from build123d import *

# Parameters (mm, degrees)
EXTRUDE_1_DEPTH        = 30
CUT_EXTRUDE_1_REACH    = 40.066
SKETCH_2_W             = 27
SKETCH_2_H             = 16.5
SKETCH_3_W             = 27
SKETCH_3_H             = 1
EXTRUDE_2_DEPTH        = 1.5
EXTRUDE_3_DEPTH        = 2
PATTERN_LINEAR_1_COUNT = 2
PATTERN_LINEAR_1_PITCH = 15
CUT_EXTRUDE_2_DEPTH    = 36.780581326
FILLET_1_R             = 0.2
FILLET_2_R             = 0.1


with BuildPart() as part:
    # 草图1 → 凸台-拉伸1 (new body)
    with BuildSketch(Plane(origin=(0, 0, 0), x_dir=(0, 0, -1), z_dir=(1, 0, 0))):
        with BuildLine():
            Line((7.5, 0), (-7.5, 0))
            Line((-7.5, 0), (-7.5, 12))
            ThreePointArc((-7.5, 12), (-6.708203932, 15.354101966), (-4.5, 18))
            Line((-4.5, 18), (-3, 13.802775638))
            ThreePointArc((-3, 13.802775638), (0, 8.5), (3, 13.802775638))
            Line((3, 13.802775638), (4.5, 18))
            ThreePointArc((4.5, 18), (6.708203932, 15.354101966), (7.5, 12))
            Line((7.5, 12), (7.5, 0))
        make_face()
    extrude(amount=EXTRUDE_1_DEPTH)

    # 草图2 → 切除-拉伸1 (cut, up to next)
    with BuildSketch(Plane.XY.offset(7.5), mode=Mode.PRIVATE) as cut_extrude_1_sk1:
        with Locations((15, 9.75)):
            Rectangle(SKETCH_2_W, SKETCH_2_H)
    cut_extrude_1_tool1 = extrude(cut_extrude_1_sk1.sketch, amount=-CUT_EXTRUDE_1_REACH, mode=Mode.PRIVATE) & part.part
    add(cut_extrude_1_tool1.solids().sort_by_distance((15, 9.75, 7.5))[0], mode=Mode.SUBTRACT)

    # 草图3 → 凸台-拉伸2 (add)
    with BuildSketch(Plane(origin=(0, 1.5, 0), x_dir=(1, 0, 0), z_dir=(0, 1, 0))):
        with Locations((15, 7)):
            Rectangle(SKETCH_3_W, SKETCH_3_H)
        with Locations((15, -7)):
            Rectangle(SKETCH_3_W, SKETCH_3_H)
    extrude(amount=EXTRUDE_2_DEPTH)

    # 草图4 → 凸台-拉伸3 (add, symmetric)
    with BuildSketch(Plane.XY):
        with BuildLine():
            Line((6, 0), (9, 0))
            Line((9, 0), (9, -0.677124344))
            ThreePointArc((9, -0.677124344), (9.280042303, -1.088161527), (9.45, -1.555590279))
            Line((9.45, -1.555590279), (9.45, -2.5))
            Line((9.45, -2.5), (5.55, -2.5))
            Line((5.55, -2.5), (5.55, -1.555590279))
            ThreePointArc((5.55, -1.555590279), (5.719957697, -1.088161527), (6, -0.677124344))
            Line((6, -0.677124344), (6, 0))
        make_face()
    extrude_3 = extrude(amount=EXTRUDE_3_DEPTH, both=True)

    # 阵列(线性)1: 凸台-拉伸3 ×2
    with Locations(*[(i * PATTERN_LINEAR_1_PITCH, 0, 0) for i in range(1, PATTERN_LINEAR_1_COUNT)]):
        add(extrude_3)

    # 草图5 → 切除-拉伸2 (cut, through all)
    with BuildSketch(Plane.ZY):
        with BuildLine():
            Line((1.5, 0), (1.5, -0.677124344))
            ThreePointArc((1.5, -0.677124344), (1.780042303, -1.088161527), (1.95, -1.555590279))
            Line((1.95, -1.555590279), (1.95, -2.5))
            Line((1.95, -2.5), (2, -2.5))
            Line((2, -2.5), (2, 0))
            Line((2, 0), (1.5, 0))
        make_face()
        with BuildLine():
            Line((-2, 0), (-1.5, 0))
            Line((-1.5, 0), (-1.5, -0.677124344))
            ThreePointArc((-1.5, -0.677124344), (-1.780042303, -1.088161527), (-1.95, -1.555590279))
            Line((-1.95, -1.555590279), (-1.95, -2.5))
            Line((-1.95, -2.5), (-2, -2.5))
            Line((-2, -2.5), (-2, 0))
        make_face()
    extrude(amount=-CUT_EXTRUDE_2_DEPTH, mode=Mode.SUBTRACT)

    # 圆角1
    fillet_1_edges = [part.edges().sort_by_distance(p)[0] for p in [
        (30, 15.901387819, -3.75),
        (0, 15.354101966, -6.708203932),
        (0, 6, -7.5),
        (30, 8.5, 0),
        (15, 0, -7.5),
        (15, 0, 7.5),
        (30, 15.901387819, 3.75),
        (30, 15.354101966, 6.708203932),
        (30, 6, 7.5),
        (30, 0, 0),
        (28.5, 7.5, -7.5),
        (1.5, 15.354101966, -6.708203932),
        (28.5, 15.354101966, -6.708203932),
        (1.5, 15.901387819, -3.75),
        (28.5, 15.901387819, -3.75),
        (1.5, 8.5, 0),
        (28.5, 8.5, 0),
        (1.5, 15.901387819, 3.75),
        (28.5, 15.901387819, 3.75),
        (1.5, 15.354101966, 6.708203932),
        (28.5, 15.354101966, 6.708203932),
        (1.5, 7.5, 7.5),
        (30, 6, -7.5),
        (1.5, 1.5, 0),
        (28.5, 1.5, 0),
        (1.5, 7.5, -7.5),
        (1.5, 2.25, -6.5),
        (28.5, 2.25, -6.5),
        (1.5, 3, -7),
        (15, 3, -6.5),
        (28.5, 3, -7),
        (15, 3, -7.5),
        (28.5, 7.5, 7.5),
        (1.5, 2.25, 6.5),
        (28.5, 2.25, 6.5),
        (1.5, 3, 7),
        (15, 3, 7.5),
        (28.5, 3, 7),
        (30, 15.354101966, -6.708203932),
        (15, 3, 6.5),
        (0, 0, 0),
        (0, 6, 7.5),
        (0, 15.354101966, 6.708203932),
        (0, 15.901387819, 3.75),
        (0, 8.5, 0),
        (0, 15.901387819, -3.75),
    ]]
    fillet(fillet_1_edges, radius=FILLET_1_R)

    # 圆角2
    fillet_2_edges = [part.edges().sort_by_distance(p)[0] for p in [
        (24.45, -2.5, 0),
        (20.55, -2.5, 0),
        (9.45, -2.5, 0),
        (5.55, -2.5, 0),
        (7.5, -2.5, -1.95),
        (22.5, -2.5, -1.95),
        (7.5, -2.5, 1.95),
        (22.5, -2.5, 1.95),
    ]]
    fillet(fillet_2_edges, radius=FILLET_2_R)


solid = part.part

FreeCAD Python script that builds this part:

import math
import FreeCAD as App
import Part
import Sketcher

V = App.Vector


def edges_at(feature, points):
    """Names of the edges that pass closest to the given points."""
    edges = feature.Shape.Edges
    near = lambda p: min(range(len(edges)), key=lambda i: edges[i].distToShape(Part.Vertex(*p))[0])
    return sorted({f"Edge{near(p) + 1}" for p in points})

doc = App.newDocument("Part")
body = doc.addObject("PartDesign::Body", "Body")

# Sketch on YZ plane
sketch1 = doc.addObject("Sketcher::SketchObject", "Sketch")
body.addObject(sketch1)
sketch1.AttachmentSupport = (doc.YZ_Plane, [""])
sketch1.MapMode = "FlatFace"
sketch1.addGeometry([
    Part.LineSegment(V(0, 7.5, 0), V(0, -7.5, 0)),  # 0
    Part.LineSegment(V(0, -7.5, 0), V(12, -7.5, 0)),  # 1
    Part.ArcOfCircle(Part.Circle(V(12, 0, 0), V(0, 0, 1), 7.5), math.radians(-90), math.radians(-37)),  # 2
    Part.LineSegment(V(18, -4.5, 0), V(13.8, -3, 0)),  # 3
    Part.ArcOfCircle(Part.Circle(V(12, 0, 0), V(0, 0, 1), 3.5), math.radians(59), math.radians(301)),  # 4
    Part.LineSegment(V(13.8, 3, 0), V(18, 4.5, 0)),  # 5
    Part.ArcOfCircle(Part.Circle(V(12, 0, 0), V(0, 0, 1), 7.5), math.radians(37), math.radians(90)),  # 6
    Part.LineSegment(V(12, 7.5, 0), V(0, 7.5, 0)),  # 7
], False)
sketch1.addConstraint([
    Sketcher.Constraint("Coincident", 0, 2, 1, 1),
    Sketcher.Constraint("Tangent", 1, 2, 2, 1),
    Sketcher.Constraint("Coincident", 2, 2, 3, 1),
    Sketcher.Constraint("Coincident", 3, 2, 4, 2),
    Sketcher.Constraint("Coincident", 4, 1, 5, 1),
    Sketcher.Constraint("Coincident", 5, 2, 6, 1),
    Sketcher.Constraint("Tangent", 6, 2, 7, 1),
    Sketcher.Constraint("Coincident", 7, 2, 0, 1),
    Sketcher.Constraint("Vertical", 0),
    Sketcher.Constraint("Horizontal", 1),
    Sketcher.Constraint("Horizontal", 7),
    Sketcher.Constraint("Coincident", 4, 3, 2, 3),
    Sketcher.Constraint("Coincident", 6, 3, 2, 3),
    Sketcher.Constraint("Equal", 2, 6),
    Sketcher.Constraint("Symmetric", 0, 2, 7, 2, -1, 1),
    Sketcher.Constraint("Vertical", 3, 2, 4, 1),
    Sketcher.Constraint("Vertical", 2, 2, 5, 2),
    Sketcher.Constraint("Radius", 2, 7.5),
    Sketcher.Constraint("Radius", 4, 3.5),
    Sketcher.Constraint("DistanceX", 1, 1, 1, 2, 12.0),
    Sketcher.Constraint("DistanceX", -1, 1, 2, 2, 18.0),
    Sketcher.Constraint("DistanceY", 3, 2, -1, 1, 3.0),
])
pad1 = doc.addObject("PartDesign::Pad", "Pad")
body.addObject(pad1)
pad1.Profile = sketch1
pad1.Length = 30

# Sketch on XY plane
sketch2 = doc.addObject("Sketcher::SketchObject", "Sketch001")
body.addObject(sketch2)
sketch2.AttachmentSupport = (doc.XY_Plane, [""])
sketch2.MapMode = "FlatFace"
sketch2.AttachmentOffset = App.Placement(V(0, 0, 7.5), App.Rotation())
sketch2.addGeometry([
    Part.LineSegment(V(2, 18, 0), V(2, 2, 0)),
    Part.LineSegment(V(2, 2, 0), V(28, 2, 0)),
    Part.LineSegment(V(28, 2, 0), V(28, 18, 0)),
    Part.LineSegment(V(28, 18, 0), V(2, 18, 0)),
], False)
sketch2.addConstraint([
    Sketcher.Constraint("Coincident", 0, 2, 1, 1),
    Sketcher.Constraint("Coincident", 1, 2, 2, 1),
    Sketcher.Constraint("Coincident", 2, 2, 3, 1),
    Sketcher.Constraint("Coincident", 3, 2, 0, 1),
    Sketcher.Constraint("Vertical", 0),
    Sketcher.Constraint("Horizontal", 1),
    Sketcher.Constraint("Vertical", 2),
    Sketcher.Constraint("Horizontal", 3),
    Sketcher.Constraint("DistanceX", 1, 1, 1, 2, 27.0),
    Sketcher.Constraint("DistanceY", 0, 2, 0, 1, 16.5),
    Sketcher.Constraint("DistanceY", -1, 1, 2, 2, 18.0),
    Sketcher.Constraint("DistanceX", -1, 1, 0, 2, 1.5),
])
pocket1 = doc.addObject("PartDesign::Pocket", "Pocket")
body.addObject(pocket1)
pocket1.Profile = sketch2
pocket1.Length = 15

# Sketch on XZ plane
sketch3 = doc.addObject("Sketcher::SketchObject", "Sketch002")
body.addObject(sketch3)
sketch3.AttachmentSupport = (doc.XZ_Plane, [""])
sketch3.MapMode = "FlatFace"
sketch3.AttachmentOffset = App.Placement(V(0, 0, -1.5), App.Rotation())
sketch3.addGeometry([
    Part.LineSegment(V(1.5, -7.5, 0), V(1.5, -6.5, 0)),  # 0
    Part.LineSegment(V(1.5, -6.5, 0), V(28.5, -6.5, 0)),  # 1
    Part.LineSegment(V(28.5, -6.5, 0), V(28.5, -7.5, 0)),  # 2
    Part.LineSegment(V(28.5, -7.5, 0), V(1.5, -7.5, 0)),  # 3
    Part.LineSegment(V(1.5, 6.5, 0), V(1.5, 7.5, 0)),  # 4
    Part.LineSegment(V(1.5, 7.5, 0), V(28.5, 7.5, 0)),  # 5
    Part.LineSegment(V(28.5, 7.5, 0), V(28.5, 6.5, 0)),  # 6
    Part.LineSegment(V(28.5, 6.5, 0), V(1.5, 6.5, 0)),  # 7
], False)
sketch3.addConstraint([
    Sketcher.Constraint("Coincident", 0, 2, 1, 1),
    Sketcher.Constraint("Coincident", 1, 2, 2, 1),
    Sketcher.Constraint("Coincident", 2, 2, 3, 1),
    Sketcher.Constraint("Coincident", 3, 2, 0, 1),
    Sketcher.Constraint("Coincident", 4, 2, 5, 1),
    Sketcher.Constraint("Coincident", 5, 2, 6, 1),
    Sketcher.Constraint("Coincident", 6, 2, 7, 1),
    Sketcher.Constraint("Coincident", 7, 2, 4, 1),
    Sketcher.Constraint("Vertical", 0),
    Sketcher.Constraint("Horizontal", 1),
    Sketcher.Constraint("Vertical", 2),
    Sketcher.Constraint("Horizontal", 3),
    Sketcher.Constraint("Vertical", 4),
    Sketcher.Constraint("Horizontal", 5),
    Sketcher.Constraint("Vertical", 6),
    Sketcher.Constraint("Horizontal", 7),
    Sketcher.Constraint("Symmetric", 3, 2, 4, 2, -1),
    Sketcher.Constraint("Symmetric", 1, 2, 6, 2, -1),
    Sketcher.Constraint("DistanceX", 1, 1, 1, 2, 27.0),
    Sketcher.Constraint("DistanceY", 0, 1, 0, 2, 1.0),
    Sketcher.Constraint("DistanceY", 0, 2, 4, 2, 14.0),
    Sketcher.Constraint("DistanceX", -1, 1, 0, 2, 1.5),
])
pad2 = doc.addObject("PartDesign::Pad", "Pad001")
body.addObject(pad2)
pad2.Profile = sketch3
pad2.Length = 1.5
pad2.Reversed = True

# Sketch on XY plane
sketch4 = doc.addObject("Sketcher::SketchObject", "Sketch003")
body.addObject(sketch4)
sketch4.AttachmentSupport = (doc.XY_Plane, [""])
sketch4.MapMode = "FlatFace"
sketch4.addGeometry([
    Part.LineSegment(V(9, 0, 0), V(6, 0, 0)),  # 0
    Part.LineSegment(V(6, 0, 0), V(6, -0.7, 0)),  # 1
    Part.ArcOfCircle(Part.Circle(V(7.5, -2, 0), V(0, 0, 1), 2), math.radians(139), math.radians(167)),  # 2
    Part.LineSegment(V(5.5, -1.6, 0), V(5.5, -2.5, 0)),  # 3
    Part.LineSegment(V(5.5, -2.5, 0), V(9.4, -2.5, 0)),  # 4
    Part.LineSegment(V(9.4, -2.5, 0), V(9.4, -1.6, 0)),  # 5
    Part.ArcOfCircle(Part.Circle(V(7.5, -2, 0), V(0, 0, 1), 2), math.radians(13), math.radians(41)),  # 6
    Part.LineSegment(V(9, -0.7, 0), V(9, 0, 0)),  # 7
], False)
sketch4.addConstraint([
    Sketcher.Constraint("Coincident", 0, 2, 1, 1),
    Sketcher.Constraint("Coincident", 1, 2, 2, 1),
    Sketcher.Constraint("Coincident", 2, 2, 3, 1),
    Sketcher.Constraint("Coincident", 3, 2, 4, 1),
    Sketcher.Constraint("Coincident", 4, 2, 5, 1),
    Sketcher.Constraint("Coincident", 5, 2, 6, 1),
    Sketcher.Constraint("Coincident", 6, 2, 7, 1),
    Sketcher.Constraint("Coincident", 7, 2, 0, 1),
    Sketcher.Constraint("Horizontal", 0),
    Sketcher.Constraint("Vertical", 1),
    Sketcher.Constraint("Vertical", 3),
    Sketcher.Constraint("Horizontal", 4),
    Sketcher.Constraint("Vertical", 5),
    Sketcher.Constraint("Vertical", 7),
    Sketcher.Constraint("Coincident", 6, 3, 2, 3),
    Sketcher.Constraint("Equal", 2, 6),
    Sketcher.Constraint("PointOnObject", 0, 2, -1),
    Sketcher.Constraint("Horizontal", 2, 2, 5, 2),
    Sketcher.Constraint("Horizontal", 1, 2, 6, 2),
    Sketcher.Constraint("Radius", 2, 2.0),
    Sketcher.Constraint("DistanceX", 0, 2, 0, 1, 3.0),
    Sketcher.Constraint("DistanceX", 4, 1, 4, 2, 3.9),
    Sketcher.Constraint("DistanceY", 2, 3, -1, 1, 2.0),
    Sketcher.Constraint("DistanceX", -1, 1, 0, 2, 6.0),
    Sketcher.Constraint("DistanceY", 3, 2, -1, 1, 2.5),
])
pad3 = doc.addObject("PartDesign::Pad", "Pad002")
body.addObject(pad3)
pad3.Profile = sketch4
pad3.Length = 4
pad3.Midplane = True
doc.recompute()

linearpattern = doc.addObject("PartDesign::LinearPattern", "LinearPattern")
body.addObject(linearpattern)
linearpattern.Originals = [pad3]
linearpattern.Direction = (doc.X_Axis, [""])
linearpattern.Mode = "offset"
linearpattern.Offset = 15
linearpattern.Occurrences = 2
body.Tip = linearpattern

# Sketch on YZ plane
sketch5 = doc.addObject("Sketcher::SketchObject", "Sketch004")
body.addObject(sketch5)
sketch5.AttachmentSupport = (doc.YZ_Plane, [""])
sketch5.MapMode = "FlatFace"
sketch5.addGeometry([
    Part.LineSegment(V(0, 1.5, 0), V(-0.68, 1.5, 0)),  # 0
    Part.ArcOfCircle(Part.Circle(V(-2, 0, 0), V(0, 0, 1), 2), math.radians(49), math.radians(77)),  # 1
    Part.LineSegment(V(-1.56, 1.95, 0), V(-2.5, 1.95, 0)),  # 2
    Part.LineSegment(V(-2.5, 1.95, 0), V(-2.5, 2, 0)),  # 3
    Part.LineSegment(V(-2.5, 2, 0), V(0, 2, 0)),  # 4
    Part.LineSegment(V(0, 2, 0), V(0, 1.5, 0)),  # 5
    Part.LineSegment(V(0, -1.5, 0), V(0, -2, 0)),  # 6
    Part.LineSegment(V(0, -2, 0), V(-2.5, -2, 0)),  # 7
    Part.LineSegment(V(-2.5, -2, 0), V(-2.5, -1.95, 0)),  # 8
    Part.LineSegment(V(-2.5, -1.95, 0), V(-1.56, -1.95, 0)),  # 9
    Part.ArcOfCircle(Part.Circle(V(-2, 0, 0), V(0, 0, 1), 2), math.radians(-77), math.radians(-49)),  # 10
    Part.LineSegment(V(-0.68, -1.5, 0), V(0, -1.5, 0)),  # 11
], False)
sketch5.addConstraint([
    Sketcher.Constraint("Coincident", 0, 2, 1, 1),
    Sketcher.Constraint("Coincident", 1, 2, 2, 1),
    Sketcher.Constraint("Coincident", 2, 2, 3, 1),
    Sketcher.Constraint("Coincident", 3, 2, 4, 1),
    Sketcher.Constraint("Coincident", 4, 2, 5, 1),
    Sketcher.Constraint("Coincident", 5, 2, 0, 1),
    Sketcher.Constraint("Coincident", 6, 2, 7, 1),
    Sketcher.Constraint("Coincident", 7, 2, 8, 1),
    Sketcher.Constraint("Coincident", 8, 2, 9, 1),
    Sketcher.Constraint("Coincident", 9, 2, 10, 1),
    Sketcher.Constraint("Coincident", 10, 2, 11, 1),
    Sketcher.Constraint("Coincident", 11, 2, 6, 1),
    Sketcher.Constraint("Horizontal", 0),
    Sketcher.Constraint("Horizontal", 2),
    Sketcher.Constraint("Vertical", 3),
    Sketcher.Constraint("Horizontal", 4),
    Sketcher.Constraint("Vertical", 5),
    Sketcher.Constraint("Vertical", 6),
    Sketcher.Constraint("Horizontal", 7),
    Sketcher.Constraint("Vertical", 8),
    Sketcher.Constraint("Horizontal", 9),
    Sketcher.Constraint("Horizontal", 11),
    Sketcher.Constraint("Coincident", 10, 3, 1, 3),
    Sketcher.Constraint("Equal", 1, 10),
    Sketcher.Constraint("Symmetric", 4, 2, 6, 2, -1, 1),
    Sketcher.Constraint("Symmetric", 2, 2, 8, 2, -1),
    Sketcher.Constraint("Symmetric", 0, 2, 10, 2, -1),
    Sketcher.Constraint("PointOnObject", 4, 2, -2),
    Sketcher.Constraint("Radius", 1, 2.0),
    Sketcher.Constraint("DistanceX", 4, 1, 4, 2, 2.5),
    Sketcher.Constraint("DistanceY", 5, 2, 5, 1, 0.5),
    Sketcher.Constraint("DistanceX", 1, 3, -1, 1, 2.0),
    Sketcher.Constraint("DistanceY", -1, 1, 3, 2, 2.0),
    Sketcher.Constraint("DistanceY", 3, 1, 3, 2, 0.05),
])
pocket2 = doc.addObject("PartDesign::Pocket", "Pocket001")
body.addObject(pocket2)
pocket2.Profile = sketch5
pocket2.Type = "ThroughAll"
pocket2.Reversed = True
doc.recompute()

fillet = doc.addObject("PartDesign::Fillet", "Fillet")
body.addObject(fillet)
fillet.Base = (pocket2, edges_at(pocket2, [
    (30, 15.901, -3.75),
    (0, 15.354, -6.708),
    (0, 6, -7.5),
    (30, 8.5, 0),
    (15, 0, -7.5),
    (15, 0, 7.5),
    (30, 15.901, 3.75),
    (30, 15.354, 6.708),
    (30, 6, 7.5),
    (30, 0, 0),
    (28.5, 7.5, -7.5),
    (1.5, 15.354, -6.708),
    (28.5, 15.354, -6.708),
    (1.5, 15.901, -3.75),
    (28.5, 15.901, -3.75),
    (1.5, 8.5, 0),
    (28.5, 8.5, 0),
    (1.5, 15.901, 3.75),
    (28.5, 15.901, 3.75),
    (1.5, 15.354, 6.708),
    (28.5, 15.354, 6.708),
    (1.5, 7.5, 7.5),
    (30, 6, -7.5),
    (1.5, 1.5, 0),
    (28.5, 1.5, 0),
    (1.5, 7.5, -7.5),
    (1.5, 2.25, -6.5),
    (28.5, 2.25, -6.5),
    (1.5, 3, -7),
    (15, 3, -6.5),
    (28.5, 3, -7),
    (15, 3, -7.5),
    (28.5, 7.5, 7.5),
    (1.5, 2.25, 6.5),
    (28.5, 2.25, 6.5),
    (1.5, 3, 7),
    (15, 3, 7.5),
    (28.5, 3, 7),
    (30, 15.354, -6.708),
    (15, 3, 6.5),
    (0, 0, 0),
    (0, 6, 7.5),
    (0, 15.354, 6.708),
    (0, 15.901, 3.75),
    (0, 8.5, 0),
    (0, 15.901, -3.75),
]))
fillet.Radius = 0.2
doc.recompute()

fillet2 = doc.addObject("PartDesign::Fillet", "Fillet001")
body.addObject(fillet2)
fillet2.Base = (fillet, edges_at(fillet, [
    (24.45, -2.5, 0),
    (20.55, -2.5, 0),
    (9.45, -2.5, 0),
    (5.55, -2.5, 0),
    (7.5, -2.5, -1.95),
    (22.5, -2.5, -1.95),
    (7.5, -2.5, 1.95),
    (22.5, -2.5, 1.95),
]))
fillet2.Radius = 0.1

doc.recompute()
